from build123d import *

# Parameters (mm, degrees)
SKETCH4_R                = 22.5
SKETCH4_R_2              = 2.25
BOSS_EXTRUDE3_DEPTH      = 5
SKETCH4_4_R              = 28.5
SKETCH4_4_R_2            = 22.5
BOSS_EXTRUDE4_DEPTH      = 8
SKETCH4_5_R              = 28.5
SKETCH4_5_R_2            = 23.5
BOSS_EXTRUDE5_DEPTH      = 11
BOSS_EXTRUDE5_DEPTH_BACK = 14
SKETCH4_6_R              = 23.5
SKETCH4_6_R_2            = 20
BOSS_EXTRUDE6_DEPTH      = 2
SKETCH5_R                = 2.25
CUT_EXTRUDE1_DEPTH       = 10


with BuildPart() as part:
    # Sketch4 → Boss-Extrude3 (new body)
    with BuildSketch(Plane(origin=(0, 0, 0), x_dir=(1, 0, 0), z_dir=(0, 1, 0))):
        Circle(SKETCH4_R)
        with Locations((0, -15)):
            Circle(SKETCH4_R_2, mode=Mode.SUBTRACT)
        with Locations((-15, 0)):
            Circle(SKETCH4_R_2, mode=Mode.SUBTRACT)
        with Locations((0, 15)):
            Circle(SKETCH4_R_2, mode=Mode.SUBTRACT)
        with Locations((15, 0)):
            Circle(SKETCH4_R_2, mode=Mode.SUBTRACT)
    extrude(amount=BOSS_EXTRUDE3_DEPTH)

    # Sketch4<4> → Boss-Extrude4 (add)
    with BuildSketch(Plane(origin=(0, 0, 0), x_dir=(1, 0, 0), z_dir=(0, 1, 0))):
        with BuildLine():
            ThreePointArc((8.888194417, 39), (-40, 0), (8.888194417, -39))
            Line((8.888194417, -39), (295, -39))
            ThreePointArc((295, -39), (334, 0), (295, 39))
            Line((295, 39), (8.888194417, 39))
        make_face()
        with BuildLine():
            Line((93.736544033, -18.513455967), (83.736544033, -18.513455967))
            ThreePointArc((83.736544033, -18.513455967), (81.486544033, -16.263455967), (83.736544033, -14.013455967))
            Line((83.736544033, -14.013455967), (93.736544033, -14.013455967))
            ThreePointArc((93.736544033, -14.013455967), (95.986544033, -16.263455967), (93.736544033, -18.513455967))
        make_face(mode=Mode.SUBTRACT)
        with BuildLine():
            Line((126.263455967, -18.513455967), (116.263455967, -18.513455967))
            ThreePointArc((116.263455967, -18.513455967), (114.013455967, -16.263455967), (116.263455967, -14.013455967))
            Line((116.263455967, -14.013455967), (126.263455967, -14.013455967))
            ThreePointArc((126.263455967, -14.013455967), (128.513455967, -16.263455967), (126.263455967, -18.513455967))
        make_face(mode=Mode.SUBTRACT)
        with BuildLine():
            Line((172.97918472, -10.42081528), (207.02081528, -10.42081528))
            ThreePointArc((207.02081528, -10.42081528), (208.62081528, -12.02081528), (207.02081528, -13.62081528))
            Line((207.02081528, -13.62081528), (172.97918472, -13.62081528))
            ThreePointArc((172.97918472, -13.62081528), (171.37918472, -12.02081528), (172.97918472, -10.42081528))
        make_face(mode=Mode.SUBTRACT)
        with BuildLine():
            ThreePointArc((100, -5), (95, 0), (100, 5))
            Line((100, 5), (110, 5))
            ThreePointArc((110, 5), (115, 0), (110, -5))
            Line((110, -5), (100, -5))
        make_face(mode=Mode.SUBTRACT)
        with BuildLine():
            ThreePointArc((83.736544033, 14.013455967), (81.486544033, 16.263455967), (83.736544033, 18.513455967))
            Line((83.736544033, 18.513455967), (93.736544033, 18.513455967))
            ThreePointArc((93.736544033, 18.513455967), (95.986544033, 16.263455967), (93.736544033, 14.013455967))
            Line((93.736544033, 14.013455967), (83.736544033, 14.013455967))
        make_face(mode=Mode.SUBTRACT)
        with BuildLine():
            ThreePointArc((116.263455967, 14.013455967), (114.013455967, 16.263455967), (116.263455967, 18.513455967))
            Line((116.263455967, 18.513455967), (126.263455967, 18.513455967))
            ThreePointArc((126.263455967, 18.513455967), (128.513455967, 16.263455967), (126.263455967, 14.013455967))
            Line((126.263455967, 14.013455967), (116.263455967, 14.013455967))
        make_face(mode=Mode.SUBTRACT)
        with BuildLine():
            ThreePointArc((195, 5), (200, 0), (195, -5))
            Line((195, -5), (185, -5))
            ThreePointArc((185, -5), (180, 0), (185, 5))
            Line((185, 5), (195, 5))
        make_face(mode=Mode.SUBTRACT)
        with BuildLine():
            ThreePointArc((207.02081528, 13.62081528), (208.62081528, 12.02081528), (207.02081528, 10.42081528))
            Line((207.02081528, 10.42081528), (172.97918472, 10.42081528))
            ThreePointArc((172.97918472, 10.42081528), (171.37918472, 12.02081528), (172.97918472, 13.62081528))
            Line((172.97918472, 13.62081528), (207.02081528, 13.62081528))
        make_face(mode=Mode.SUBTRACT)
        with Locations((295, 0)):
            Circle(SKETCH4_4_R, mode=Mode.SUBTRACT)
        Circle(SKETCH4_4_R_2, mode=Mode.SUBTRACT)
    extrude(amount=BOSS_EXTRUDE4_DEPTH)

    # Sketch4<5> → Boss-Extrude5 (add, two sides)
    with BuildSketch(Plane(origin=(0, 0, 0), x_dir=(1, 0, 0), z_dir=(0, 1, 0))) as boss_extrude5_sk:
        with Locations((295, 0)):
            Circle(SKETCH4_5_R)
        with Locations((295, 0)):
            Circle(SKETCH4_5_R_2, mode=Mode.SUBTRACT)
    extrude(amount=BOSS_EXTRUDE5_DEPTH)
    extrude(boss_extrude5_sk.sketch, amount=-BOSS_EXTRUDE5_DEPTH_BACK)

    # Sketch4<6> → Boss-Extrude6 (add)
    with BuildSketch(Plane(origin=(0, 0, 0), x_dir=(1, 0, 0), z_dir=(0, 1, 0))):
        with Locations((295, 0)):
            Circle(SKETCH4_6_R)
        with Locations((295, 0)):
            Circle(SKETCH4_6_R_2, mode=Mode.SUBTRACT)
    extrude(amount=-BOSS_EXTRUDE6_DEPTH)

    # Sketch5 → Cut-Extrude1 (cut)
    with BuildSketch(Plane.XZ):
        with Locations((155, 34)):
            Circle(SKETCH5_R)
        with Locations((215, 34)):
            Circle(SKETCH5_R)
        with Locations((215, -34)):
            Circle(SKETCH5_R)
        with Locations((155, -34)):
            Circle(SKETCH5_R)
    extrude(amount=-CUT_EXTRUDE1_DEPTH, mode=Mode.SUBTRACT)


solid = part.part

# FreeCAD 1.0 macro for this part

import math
import FreeCAD as App
import Part
import Sketcher

V = App.Vector

doc = App.newDocument("Part")
body = doc.addObject("PartDesign::Body", "Body")

sketch1 = body.newObject("Sketcher::SketchObject", "Sketch")
sketch1.AttachmentSupport = (doc.getObject("XZ_Plane"), [""])
sketch1.MapMode = "FlatFace"
sketch1.addGeometry(Part.Circle(V(0, 0, 0), V(0, 0, 1), 22.5), False)
sketch1.addGeometry(Part.Circle(V(0, 15, 0), V(0, 0, 1), 2.2), False)
sketch1.addGeometry(Part.Circle(V(-15, 0, 0), V(0, 0, 1), 2.2), False)
sketch1.addGeometry(Part.Circle(V(15, 0, 0), V(0, 0, 1), 2.2), False)
sketch1.addGeometry(Part.Circle(V(0, -15, 0), V(0, 0, 1), 2.2), False)
sketch1.addConstraint(Sketcher.Constraint("Coincident", 0, 3, -1, 1))
sketch1.addConstraint(Sketcher.Constraint("Equal", 1, 2))
sketch1.addConstraint(Sketcher.Constraint("Equal", 2, 3))
sketch1.addConstraint(Sketcher.Constraint("Equal", 3, 4))
sketch1.addConstraint(Sketcher.Constraint("Symmetric", 2, 3, 3, 3, -1, 1))
sketch1.addConstraint(Sketcher.Constraint("Symmetric", 1, 3, 4, 3, -1, 1))
sketch1.addConstraint(Sketcher.Constraint("PointOnObject", 1, 3, -2))
sketch1.addConstraint(Sketcher.Constraint("PointOnObject", 2, 3, -1))
sketch1.addConstraint(Sketcher.Constraint("Diameter", 0, 45.0))
sketch1.addConstraint(Sketcher.Constraint("Diameter", 1, 4.5))
sketch1.addConstraint(Sketcher.Constraint("DistanceY", -1, 1, 1, 3, 15.0))
sketch1.addConstraint(Sketcher.Constraint("DistanceX", 2, 3, -1, 1, 15.0))
pad1 = body.newObject("PartDesign::Pad", "Pad")
pad1.Profile = sketch1
pad1.Length = 5
pad1.Reversed = True

sketch2 = body.newObject("Sketcher::SketchObject", "Sketch001")
sketch2.AttachmentSupport = (doc.getObject("XZ_Plane"), [""])
sketch2.MapMode = "FlatFace"
sketch2.addGeometry(Part.ArcOfCircle(Part.Circle(V(0, 0, 0), V(0, 0, 1), 40), math.radians(77), math.radians(283)), False)
sketch2.addGeometry(Part.LineSegment(V(8.9, 39, 0), V(295, 39, 0)), False)
sketch2.addGeometry(Part.ArcOfCircle(Part.Circle(V(295, 0, 0), V(0, 0, 1), 39), math.radians(-90), math.radians(90)), False)
sketch2.addGeometry(Part.LineSegment(V(295, -39, 0), V(8.9, -39, 0)), False)
sketch2.addGeometry(Part.ArcOfCircle(Part.Circle(V(93.7, 16.3, 0), V(0, 0, 1), 2.2), math.radians(-90), math.radians(90)), False)
sketch2.addGeometry(Part.LineSegment(V(93.7, 18.5, 0), V(83.7, 18.5, 0)), False)
sketch2.addGeometry(Part.ArcOfCircle(Part.Circle(V(83.7, 16.3, 0), V(0, 0, 1), 2.2), math.radians(90), math.radians(270)), False)
sketch2.addGeometry(Part.LineSegment(V(83.7, 14, 0), V(93.7, 14, 0)), False)
sketch2.addGeometry(Part.ArcOfCircle(Part.Circle(V(126.3, 16.3, 0), V(0, 0, 1), 2.2), math.radians(-90), math.radians(90)), False)
sketch2.addGeometry(Part.LineSegment(V(126.3, 18.5, 0), V(116.3, 18.5, 0)), False)
sketch2.addGeometry(Part.ArcOfCircle(Part.Circle(V(116.3, 16.3, 0), V(0, 0, 1), 2.2), math.radians(90), math.radians(270)), False)
sketch2.addGeometry(Part.LineSegment(V(116.3, 14, 0), V(126.3, 14, 0)), False)
sketch2.addGeometry(Part.ArcOfCircle(Part.Circle(V(173, 12, 0), V(0, 0, 1), 1.6), math.radians(90), math.radians(270)), False)
sketch2.addGeometry(Part.LineSegment(V(173, 10.4, 0), V(207, 10.4, 0)), False)
sketch2.addGeometry(Part.ArcOfCircle(Part.Circle(V(207, 12, 0), V(0, 0, 1), 1.6), math.radians(-90), math.radians(90)), False)
sketch2.addGeometry(Part.LineSegment(V(207, 13.6, 0), V(173, 13.6, 0)), False)
sketch2.addGeometry(Part.Circle(V(0, 0, 0), V(0, 0, 1), 22.5), False)
sketch2.addGeometry(Part.LineSegment(V(110, 5, 0), V(100, 5, 0)), False)
sketch2.addGeometry(Part.ArcOfCircle(Part.Circle(V(100, 0, 0), V(0, 0, 1), 5), math.radians(90), math.radians(270)), False)
sketch2.addGeometry(Part.LineSegment(V(100, -5, 0), V(110, -5, 0)), False)
sketch2.addGeometry(Part.ArcOfCircle(Part.Circle(V(110, 0, 0), V(0, 0, 1), 5), math.radians(-90), math.radians(90)), False)
sketch2.addGeometry(Part.LineSegment(V(93.7, -14, 0), V(83.7, -14, 0)), False)
sketch2.addGeometry(Part.ArcOfCircle(Part.Circle(V(83.7, -16.3, 0), V(0, 0, 1), 2.2), math.radians(90), math.radians(270)), False)
sketch2.addGeometry(Part.LineSegment(V(83.7, -18.5, 0), V(93.7, -18.5, 0)), False)
sketch2.addGeometry(Part.ArcOfCircle(Part.Circle(V(93.7, -16.3, 0), V(0, 0, 1), 2.2), math.radians(-90), math.radians(90)), False)
sketch2.addGeometry(Part.LineSegment(V(126.3, -14, 0), V(116.3, -14, 0)), False)
sketch2.addGeometry(Part.ArcOfCircle(Part.Circle(V(116.3, -16.3, 0), V(0, 0, 1), 2.2), math.radians(90), math.radians(270)), False)
sketch2.addGeometry(Part.LineSegment(V(116.3, -18.5, 0), V(126.3, -18.5, 0)), False)
sketch2.addGeometry(Part.ArcOfCircle(Part.Circle(V(126.3, -16.3, 0), V(0, 0, 1), 2.2), math.radians(-90), math.radians(90)), False)
sketch2.addGeometry(Part.LineSegment(V(185, -5, 0), V(195, -5, 0)), False)
sketch2.addGeometry(Part.ArcOfCircle(Part.Circle(V(195, 0, 0), V(0, 0, 1), 5), math.radians(-90), math.radians(90)), False)
sketch2.addGeometry(Part.LineSegment(V(195, 5, 0), V(185, 5, 0)), False)
sketch2.addGeometry(Part.ArcOfCircle(Part.Circle(V(185, 0, 0), V(0, 0, 1), 5), math.radians(90), math.radians(270)), False)
sketch2.addGeometry(Part.LineSegment(V(173, -13.6, 0), V(207, -13.6, 0)), False)
sketch2.addGeometry(Part.ArcOfCircle(Part.Circle(V(207, -12, 0), V(0, 0, 1), 1.6), math.radians(-90), math.radians(90)), False)
sketch2.addGeometry(Part.LineSegment(V(207, -10.4, 0), V(173, -10.4, 0)), False)
sketch2.addGeometry(Part.ArcOfCircle(Part.Circle(V(173, -12, 0), V(0, 0, 1), 1.6), math.radians(90), math.radians(270)), False)
sketch2.addGeometry(Part.Circle(V(295, 0, 0), V(0, 0, 1), 28.5), False)
sketch2.addConstraint(Sketcher.Constraint("Coincident", 0, 1, 1, 1))
sketch2.addConstraint(Sketcher.Constraint("Tangent", 1, 2, 2, 2))
sketch2.addConstraint(Sketcher.Constraint("Tangent", 2, 1, 3, 1))
sketch2.addConstraint(Sketcher.Constraint("Coincident", 3, 2, 0, 2))
sketch2.addConstraint(Sketcher.Constraint("Tangent", 4, 2, 5, 1))
sketch2.addConstraint(Sketcher.Constraint("Tangent", 5, 2, 6, 1))
sketch2.addConstraint(Sketcher.Constraint("Tangent", 6, 2, 7, 1))
sketch2.addConstraint(Sketcher.Constraint("Tangent", 7, 2, 4, 1))
sketch2.addConstraint(Sketcher.Constraint("Tangent", 8, 2, 9, 1))
sketch2.addConstraint(Sketcher.Constraint("Tangent", 9, 2, 10, 1))
sketch2.addConstraint(Sketcher.Constraint("Tangent", 10, 2, 11, 1))
sketch2.addConstraint(Sketcher.Constraint("Tangent", 11, 2, 8, 1))
sketch2.addConstraint(Sketcher.Constraint("Tangent", 12, 2, 13, 1))
sketch2.addConstraint(Sketcher.Constraint("Tangent", 13, 2, 14, 1))
sketch2.addConstraint(Sketcher.Constraint("Tangent", 14, 2, 15, 1))
sketch2.addConstraint(Sketcher.Constraint("Tangent", 15, 2, 12, 1))
sketch2.addConstraint(Sketcher.Constraint("Tangent", 17, 2, 18, 1))
sketch2.addConstraint(Sketcher.Constraint("Tangent", 18, 2, 19, 1))
sketch2.addConstraint(Sketcher.Constraint("Tangent", 19, 2, 20, 1))
sketch2.addConstraint(Sketcher.Constraint("Tangent", 20, 2, 17, 1))
sketch2.addConstraint(Sketcher.Constraint("Tangent", 21, 2, 22, 1))
sketch2.addConstraint(Sketcher.Constraint("Tangent", 22, 2, 23, 1))
sketch2.addConstraint(Sketcher.Constraint("Tangent", 23, 2, 24, 1))
sketch2.addConstraint(Sketcher.Constraint("Tangent", 24, 2, 21, 1))
sketch2.addConstraint(Sketcher.Constraint("Tangent", 25, 2, 26, 1))
sketch2.addConstraint(Sketcher.Constraint("Tangent", 26, 2, 27, 1))
sketch2.addConstraint(Sketcher.Constraint("Tangent", 27, 2, 28, 1))
sketch2.addConstraint(Sketcher.Constraint("Tangent", 28, 2, 25, 1))
sketch2.addConstraint(Sketcher.Constraint("Tangent", 29, 2, 30, 1))
sketch2.addConstraint(Sketcher.Constraint("Tangent", 30, 2, 31, 1))
sketch2.addConstraint(Sketcher.Constraint("Tangent", 31, 2, 32, 1))
sketch2.addConstraint(Sketcher.Constraint("Tangent", 32, 2, 29, 1))
sketch2.addConstraint(Sketcher.Constraint("Tangent", 33, 2, 34, 1))
sketch2.addConstraint(Sketcher.Constraint("Tangent", 34, 2, 35, 1))
sketch2.addConstraint(Sketcher.Constraint("Tangent", 35, 2, 36, 1))
sketch2.addConstraint(Sketcher.Constraint("Tangent", 36, 2, 33, 1))
sketch2.addConstraint(Sketcher.Constraint("Horizontal", 1))
sketch2.addConstraint(Sketcher.Constraint("Horizontal", 3))
sketch2.addConstraint(Sketcher.Constraint("Horizontal", 5))
sketch2.addConstraint(Sketcher.Constraint("Horizontal", 7))
sketch2.addConstraint(Sketcher.Constraint("Horizontal", 9))
sketch2.addConstraint(Sketcher.Constraint("Horizontal", 11))
sketch2.addConstraint(Sketcher.Constraint("Horizontal", 13))
sketch2.addConstraint(Sketcher.Constraint("Horizontal", 15))
sketch2.addConstraint(Sketcher.Constraint("Horizontal", 17))
sketch2.addConstraint(Sketcher.Constraint("Horizontal", 19))
sketch2.addConstraint(Sketcher.Constraint("Horizontal", 21))
sketch2.addConstraint(Sketcher.Constraint("Horizontal", 23))
sketch2.addConstraint(Sketcher.Constraint("Horizontal", 25))
sketch2.addConstraint(Sketcher.Constraint("Horizontal", 27))
sketch2.addConstraint(Sketcher.Constraint("Horizontal", 29))
sketch2.addConstraint(Sketcher.Constraint("Horizontal", 31))
sketch2.addConstraint(Sketcher.Constraint("Horizontal", 33))
sketch2.addConstraint(Sketcher.Constraint("Horizontal", 35))
sketch2.addConstraint(Sketcher.Constraint("Coincident", 0, 3, -1, 1))
sketch2.addConstraint(Sketcher.Constraint("Coincident", 16, 3, -1, 1))
sketch2.addConstraint(Sketcher.Constraint("Coincident", 37, 3, 2, 3))
sketch2.addConstraint(Sketcher.Constraint("Equal", 6, 8))
sketch2.addConstraint(Sketcher.Constraint("Equal", 10, 22))
sketch2.addConstraint(Sketcher.Constraint("Equal", 24, 26))
sketch2.addConstraint(Sketcher.Constraint("Equal", 20, 30))
sketch2.addConstraint(Sketcher.Constraint("Equal", 14, 34))
sketch2.addConstraint(Sketcher.Constraint("Symmetric", 6, 3, 22, 3, -1))
sketch2.addConstraint(Sketcher.Constraint("Symmetric", 10, 3, 26, 3, -1))
sketch2.addConstraint(Sketcher.Constraint("Symmetric", 14, 3, 34, 3, -1))
sketch2.addConstraint(Sketcher.Constraint("PointOnObject", 2, 3, -1))
sketch2.addConstraint(Sketcher.Constraint("PointOnObject", 18, 3, -1))
sketch2.addConstraint(Sketcher.Constraint("PointOnObject", 30, 3, -1))
sketch2.addConstraint(Sketcher.Constraint("Horizontal", 6, 3, 8, 3))
sketch2.addConstraint(Sketcher.Constraint("Vertical", 4, 3, 24, 3))
sketch2.addConstraint(Sketcher.Constraint("Vertical", 8, 3, 28, 3))
sketch2.addConstraint(Sketcher.Constraint("Vertical", 12, 3, 36, 3))
sketch2.addConstraint(Sketcher.Constraint("Equal", 7, 9))
sketch2.addConstraint(Sketcher.Constraint("Equal", 11, 17))
sketch2.addConstraint(Sketcher.Constraint("Equal", 27, 29))
sketch2.addConstraint(Sketcher.Constraint("Diameter", 16, 45.0))
sketch2.addConstraint(Sketcher.Constraint("Diameter", 37, 57.0))
sketch2.addConstraint(Sketcher.Constraint("Radius", 0, 40.0))
sketch2.addConstraint(Sketcher.Constraint("Radius", 2, 39.0))
sketch2.addConstraint(Sketcher.Constraint("Radius", 18, 5.0))
sketch2.addConstraint(Sketcher.Constraint("Radius", 12, 1.6))
sketch2.addConstraint(Sketcher.Constraint("DistanceX", 5, 2, 5, 1, 10.0))
sketch2.addConstraint(Sketcher.Constraint("Radius", 4, 2.25))
sketch2.addConstraint(Sketcher.Constraint("DistanceX", -1, 1, 2, 3, 295.0))
sketch2.addConstraint(Sketcher.Constraint("DistanceX", -1, 1, 18, 3, 100.0))
sketch2.addConstraint(Sketcher.Constraint("DistanceX", -1, 1, 30, 3, 195.0))
sketch2.addConstraint(Sketcher.Constraint("DistanceX", 13, 1, 13, 2, 34.041631))
sketch2.addConstraint(Sketcher.Constraint("DistanceX", 4, 3, 8, 3, 32.526912))
sketch2.addConstraint(Sketcher.Constraint("DistanceX", 8, 3, 12, 3, 46.715729))
sketch2.addConstraint(Sketcher.Constraint("DistanceY", 12, 3, 8, 3, 4.242641))
sketch2.addConstraint(Sketcher.Constraint("DistanceY", 22, 3, 6, 3, 32.526912))
sketch2.addConstraint(Sketcher.Constraint("DistanceX", 0, 1, 6, 3, 74.84835))
pad2 = body.newObject("PartDesign::Pad", "Pad001")
pad2.Profile = sketch2
pad2.Length = 8
pad2.Reversed = True

sketch3 = body.newObject("Sketcher::SketchObject", "Sketch002")
sketch3.AttachmentSupport = (doc.getObject("XZ_Plane"), [""])
sketch3.MapMode = "FlatFace"
sketch3.addGeometry(Part.Circle(V(295, 0, 0), V(0, 0, 1), 28), False)
sketch3.addGeometry(Part.Circle(V(295, 0, 0), V(0, 0, 1), 24), False)
sketch3.addConstraint(Sketcher.Constraint("Coincident", 1, 3, 0, 3))
sketch3.addConstraint(Sketcher.Constraint("PointOnObject", 0, 3, -1))
sketch3.addConstraint(Sketcher.Constraint("Diameter", 0, 57.0))
sketch3.addConstraint(Sketcher.Constraint("Diameter", 1, 47.0))
sketch3.addConstraint(Sketcher.Constraint("DistanceX", -1, 1, 0, 3, 295.0))
pad3 = body.newObject("PartDesign::Pad", "Pad002")
pad3.Profile = sketch3
pad3.Type = "TwoLengths"
pad3.Length = 11
pad3.Length2 = 14
pad3.Reversed = True

sketch4 = body.newObject("Sketcher::SketchObject", "Sketch003")
sketch4.AttachmentSupport = (doc.getObject("XZ_Plane"), [""])
sketch4.MapMode = "FlatFace"
sketch4.addGeometry(Part.Circle(V(295, 0, 0), V(0, 0, 1), 24), False)
sketch4.addGeometry(Part.Circle(V(295, 0, 0), V(0, 0, 1), 20), False)
sketch4.addConstraint(Sketcher.Constraint("Coincident", 1, 3, 0, 3))
sketch4.addConstraint(Sketcher.Constraint("PointOnObject", 0, 3, -1))
sketch4.addConstraint(Sketcher.Constraint("Diameter", 0, 47.0))
sketch4.addConstraint(Sketcher.Constraint("Diameter", 1, 40.0))
sketch4.addConstraint(Sketcher.Constraint("DistanceX", -1, 1, 0, 3, 295.0))
pad4 = body.newObject("PartDesign::Pad", "Pad003")
pad4.Profile = sketch4
pad4.Length = 2

sketch5 = body.newObject("Sketcher::SketchObject", "Sketch004")
sketch5.AttachmentSupport = (doc.getObject("XZ_Plane"), [""])
sketch5.MapMode = "FlatFace"
sketch5.addGeometry(Part.Circle(V(155, 34, 0), V(0, 0, 1), 2.2), False)
sketch5.addGeometry(Part.Circle(V(215, 34, 0), V(0, 0, 1), 2.2), False)
sketch5.addGeometry(Part.Circle(V(215, -34, 0), V(0, 0, 1), 2.2), False)
sketch5.addGeometry(Part.Circle(V(155, -34, 0), V(0, 0, 1), 2.2), False)
sketch5.addConstraint(Sketcher.Constraint("Equal", 0, 1))
sketch5.addConstraint(Sketcher.Constraint("Equal", 1, 2))
sketch5.addConstraint(Sketcher.Constraint("Equal", 2, 3))
sketch5.addConstraint(Sketcher.Constraint("Symmetric", 1, 3, 2, 3, -1))
sketch5.addConstraint(Sketcher.Constraint("Symmetric", 0, 3, 3, 3, -1))
sketch5.addConstraint(Sketcher.Constraint("Horizontal", 0, 3, 1, 3))
sketch5.addConstraint(Sketcher.Constraint("Diameter", 0, 4.5))
sketch5.addConstraint(Sketcher.Constraint("DistanceX", -1, 1, 0, 3, 155.0))
sketch5.addConstraint(Sketcher.Constraint("DistanceY", -1, 1, 0, 3, 34.0))
sketch5.addConstraint(Sketcher.Constraint("DistanceX", -1, 1, 1, 3, 215.0))
pocket1 = body.newObject("PartDesign::Pocket", "Pocket")
pocket1.Profile = sketch5
pocket1.Length = 10

doc.recompute()
